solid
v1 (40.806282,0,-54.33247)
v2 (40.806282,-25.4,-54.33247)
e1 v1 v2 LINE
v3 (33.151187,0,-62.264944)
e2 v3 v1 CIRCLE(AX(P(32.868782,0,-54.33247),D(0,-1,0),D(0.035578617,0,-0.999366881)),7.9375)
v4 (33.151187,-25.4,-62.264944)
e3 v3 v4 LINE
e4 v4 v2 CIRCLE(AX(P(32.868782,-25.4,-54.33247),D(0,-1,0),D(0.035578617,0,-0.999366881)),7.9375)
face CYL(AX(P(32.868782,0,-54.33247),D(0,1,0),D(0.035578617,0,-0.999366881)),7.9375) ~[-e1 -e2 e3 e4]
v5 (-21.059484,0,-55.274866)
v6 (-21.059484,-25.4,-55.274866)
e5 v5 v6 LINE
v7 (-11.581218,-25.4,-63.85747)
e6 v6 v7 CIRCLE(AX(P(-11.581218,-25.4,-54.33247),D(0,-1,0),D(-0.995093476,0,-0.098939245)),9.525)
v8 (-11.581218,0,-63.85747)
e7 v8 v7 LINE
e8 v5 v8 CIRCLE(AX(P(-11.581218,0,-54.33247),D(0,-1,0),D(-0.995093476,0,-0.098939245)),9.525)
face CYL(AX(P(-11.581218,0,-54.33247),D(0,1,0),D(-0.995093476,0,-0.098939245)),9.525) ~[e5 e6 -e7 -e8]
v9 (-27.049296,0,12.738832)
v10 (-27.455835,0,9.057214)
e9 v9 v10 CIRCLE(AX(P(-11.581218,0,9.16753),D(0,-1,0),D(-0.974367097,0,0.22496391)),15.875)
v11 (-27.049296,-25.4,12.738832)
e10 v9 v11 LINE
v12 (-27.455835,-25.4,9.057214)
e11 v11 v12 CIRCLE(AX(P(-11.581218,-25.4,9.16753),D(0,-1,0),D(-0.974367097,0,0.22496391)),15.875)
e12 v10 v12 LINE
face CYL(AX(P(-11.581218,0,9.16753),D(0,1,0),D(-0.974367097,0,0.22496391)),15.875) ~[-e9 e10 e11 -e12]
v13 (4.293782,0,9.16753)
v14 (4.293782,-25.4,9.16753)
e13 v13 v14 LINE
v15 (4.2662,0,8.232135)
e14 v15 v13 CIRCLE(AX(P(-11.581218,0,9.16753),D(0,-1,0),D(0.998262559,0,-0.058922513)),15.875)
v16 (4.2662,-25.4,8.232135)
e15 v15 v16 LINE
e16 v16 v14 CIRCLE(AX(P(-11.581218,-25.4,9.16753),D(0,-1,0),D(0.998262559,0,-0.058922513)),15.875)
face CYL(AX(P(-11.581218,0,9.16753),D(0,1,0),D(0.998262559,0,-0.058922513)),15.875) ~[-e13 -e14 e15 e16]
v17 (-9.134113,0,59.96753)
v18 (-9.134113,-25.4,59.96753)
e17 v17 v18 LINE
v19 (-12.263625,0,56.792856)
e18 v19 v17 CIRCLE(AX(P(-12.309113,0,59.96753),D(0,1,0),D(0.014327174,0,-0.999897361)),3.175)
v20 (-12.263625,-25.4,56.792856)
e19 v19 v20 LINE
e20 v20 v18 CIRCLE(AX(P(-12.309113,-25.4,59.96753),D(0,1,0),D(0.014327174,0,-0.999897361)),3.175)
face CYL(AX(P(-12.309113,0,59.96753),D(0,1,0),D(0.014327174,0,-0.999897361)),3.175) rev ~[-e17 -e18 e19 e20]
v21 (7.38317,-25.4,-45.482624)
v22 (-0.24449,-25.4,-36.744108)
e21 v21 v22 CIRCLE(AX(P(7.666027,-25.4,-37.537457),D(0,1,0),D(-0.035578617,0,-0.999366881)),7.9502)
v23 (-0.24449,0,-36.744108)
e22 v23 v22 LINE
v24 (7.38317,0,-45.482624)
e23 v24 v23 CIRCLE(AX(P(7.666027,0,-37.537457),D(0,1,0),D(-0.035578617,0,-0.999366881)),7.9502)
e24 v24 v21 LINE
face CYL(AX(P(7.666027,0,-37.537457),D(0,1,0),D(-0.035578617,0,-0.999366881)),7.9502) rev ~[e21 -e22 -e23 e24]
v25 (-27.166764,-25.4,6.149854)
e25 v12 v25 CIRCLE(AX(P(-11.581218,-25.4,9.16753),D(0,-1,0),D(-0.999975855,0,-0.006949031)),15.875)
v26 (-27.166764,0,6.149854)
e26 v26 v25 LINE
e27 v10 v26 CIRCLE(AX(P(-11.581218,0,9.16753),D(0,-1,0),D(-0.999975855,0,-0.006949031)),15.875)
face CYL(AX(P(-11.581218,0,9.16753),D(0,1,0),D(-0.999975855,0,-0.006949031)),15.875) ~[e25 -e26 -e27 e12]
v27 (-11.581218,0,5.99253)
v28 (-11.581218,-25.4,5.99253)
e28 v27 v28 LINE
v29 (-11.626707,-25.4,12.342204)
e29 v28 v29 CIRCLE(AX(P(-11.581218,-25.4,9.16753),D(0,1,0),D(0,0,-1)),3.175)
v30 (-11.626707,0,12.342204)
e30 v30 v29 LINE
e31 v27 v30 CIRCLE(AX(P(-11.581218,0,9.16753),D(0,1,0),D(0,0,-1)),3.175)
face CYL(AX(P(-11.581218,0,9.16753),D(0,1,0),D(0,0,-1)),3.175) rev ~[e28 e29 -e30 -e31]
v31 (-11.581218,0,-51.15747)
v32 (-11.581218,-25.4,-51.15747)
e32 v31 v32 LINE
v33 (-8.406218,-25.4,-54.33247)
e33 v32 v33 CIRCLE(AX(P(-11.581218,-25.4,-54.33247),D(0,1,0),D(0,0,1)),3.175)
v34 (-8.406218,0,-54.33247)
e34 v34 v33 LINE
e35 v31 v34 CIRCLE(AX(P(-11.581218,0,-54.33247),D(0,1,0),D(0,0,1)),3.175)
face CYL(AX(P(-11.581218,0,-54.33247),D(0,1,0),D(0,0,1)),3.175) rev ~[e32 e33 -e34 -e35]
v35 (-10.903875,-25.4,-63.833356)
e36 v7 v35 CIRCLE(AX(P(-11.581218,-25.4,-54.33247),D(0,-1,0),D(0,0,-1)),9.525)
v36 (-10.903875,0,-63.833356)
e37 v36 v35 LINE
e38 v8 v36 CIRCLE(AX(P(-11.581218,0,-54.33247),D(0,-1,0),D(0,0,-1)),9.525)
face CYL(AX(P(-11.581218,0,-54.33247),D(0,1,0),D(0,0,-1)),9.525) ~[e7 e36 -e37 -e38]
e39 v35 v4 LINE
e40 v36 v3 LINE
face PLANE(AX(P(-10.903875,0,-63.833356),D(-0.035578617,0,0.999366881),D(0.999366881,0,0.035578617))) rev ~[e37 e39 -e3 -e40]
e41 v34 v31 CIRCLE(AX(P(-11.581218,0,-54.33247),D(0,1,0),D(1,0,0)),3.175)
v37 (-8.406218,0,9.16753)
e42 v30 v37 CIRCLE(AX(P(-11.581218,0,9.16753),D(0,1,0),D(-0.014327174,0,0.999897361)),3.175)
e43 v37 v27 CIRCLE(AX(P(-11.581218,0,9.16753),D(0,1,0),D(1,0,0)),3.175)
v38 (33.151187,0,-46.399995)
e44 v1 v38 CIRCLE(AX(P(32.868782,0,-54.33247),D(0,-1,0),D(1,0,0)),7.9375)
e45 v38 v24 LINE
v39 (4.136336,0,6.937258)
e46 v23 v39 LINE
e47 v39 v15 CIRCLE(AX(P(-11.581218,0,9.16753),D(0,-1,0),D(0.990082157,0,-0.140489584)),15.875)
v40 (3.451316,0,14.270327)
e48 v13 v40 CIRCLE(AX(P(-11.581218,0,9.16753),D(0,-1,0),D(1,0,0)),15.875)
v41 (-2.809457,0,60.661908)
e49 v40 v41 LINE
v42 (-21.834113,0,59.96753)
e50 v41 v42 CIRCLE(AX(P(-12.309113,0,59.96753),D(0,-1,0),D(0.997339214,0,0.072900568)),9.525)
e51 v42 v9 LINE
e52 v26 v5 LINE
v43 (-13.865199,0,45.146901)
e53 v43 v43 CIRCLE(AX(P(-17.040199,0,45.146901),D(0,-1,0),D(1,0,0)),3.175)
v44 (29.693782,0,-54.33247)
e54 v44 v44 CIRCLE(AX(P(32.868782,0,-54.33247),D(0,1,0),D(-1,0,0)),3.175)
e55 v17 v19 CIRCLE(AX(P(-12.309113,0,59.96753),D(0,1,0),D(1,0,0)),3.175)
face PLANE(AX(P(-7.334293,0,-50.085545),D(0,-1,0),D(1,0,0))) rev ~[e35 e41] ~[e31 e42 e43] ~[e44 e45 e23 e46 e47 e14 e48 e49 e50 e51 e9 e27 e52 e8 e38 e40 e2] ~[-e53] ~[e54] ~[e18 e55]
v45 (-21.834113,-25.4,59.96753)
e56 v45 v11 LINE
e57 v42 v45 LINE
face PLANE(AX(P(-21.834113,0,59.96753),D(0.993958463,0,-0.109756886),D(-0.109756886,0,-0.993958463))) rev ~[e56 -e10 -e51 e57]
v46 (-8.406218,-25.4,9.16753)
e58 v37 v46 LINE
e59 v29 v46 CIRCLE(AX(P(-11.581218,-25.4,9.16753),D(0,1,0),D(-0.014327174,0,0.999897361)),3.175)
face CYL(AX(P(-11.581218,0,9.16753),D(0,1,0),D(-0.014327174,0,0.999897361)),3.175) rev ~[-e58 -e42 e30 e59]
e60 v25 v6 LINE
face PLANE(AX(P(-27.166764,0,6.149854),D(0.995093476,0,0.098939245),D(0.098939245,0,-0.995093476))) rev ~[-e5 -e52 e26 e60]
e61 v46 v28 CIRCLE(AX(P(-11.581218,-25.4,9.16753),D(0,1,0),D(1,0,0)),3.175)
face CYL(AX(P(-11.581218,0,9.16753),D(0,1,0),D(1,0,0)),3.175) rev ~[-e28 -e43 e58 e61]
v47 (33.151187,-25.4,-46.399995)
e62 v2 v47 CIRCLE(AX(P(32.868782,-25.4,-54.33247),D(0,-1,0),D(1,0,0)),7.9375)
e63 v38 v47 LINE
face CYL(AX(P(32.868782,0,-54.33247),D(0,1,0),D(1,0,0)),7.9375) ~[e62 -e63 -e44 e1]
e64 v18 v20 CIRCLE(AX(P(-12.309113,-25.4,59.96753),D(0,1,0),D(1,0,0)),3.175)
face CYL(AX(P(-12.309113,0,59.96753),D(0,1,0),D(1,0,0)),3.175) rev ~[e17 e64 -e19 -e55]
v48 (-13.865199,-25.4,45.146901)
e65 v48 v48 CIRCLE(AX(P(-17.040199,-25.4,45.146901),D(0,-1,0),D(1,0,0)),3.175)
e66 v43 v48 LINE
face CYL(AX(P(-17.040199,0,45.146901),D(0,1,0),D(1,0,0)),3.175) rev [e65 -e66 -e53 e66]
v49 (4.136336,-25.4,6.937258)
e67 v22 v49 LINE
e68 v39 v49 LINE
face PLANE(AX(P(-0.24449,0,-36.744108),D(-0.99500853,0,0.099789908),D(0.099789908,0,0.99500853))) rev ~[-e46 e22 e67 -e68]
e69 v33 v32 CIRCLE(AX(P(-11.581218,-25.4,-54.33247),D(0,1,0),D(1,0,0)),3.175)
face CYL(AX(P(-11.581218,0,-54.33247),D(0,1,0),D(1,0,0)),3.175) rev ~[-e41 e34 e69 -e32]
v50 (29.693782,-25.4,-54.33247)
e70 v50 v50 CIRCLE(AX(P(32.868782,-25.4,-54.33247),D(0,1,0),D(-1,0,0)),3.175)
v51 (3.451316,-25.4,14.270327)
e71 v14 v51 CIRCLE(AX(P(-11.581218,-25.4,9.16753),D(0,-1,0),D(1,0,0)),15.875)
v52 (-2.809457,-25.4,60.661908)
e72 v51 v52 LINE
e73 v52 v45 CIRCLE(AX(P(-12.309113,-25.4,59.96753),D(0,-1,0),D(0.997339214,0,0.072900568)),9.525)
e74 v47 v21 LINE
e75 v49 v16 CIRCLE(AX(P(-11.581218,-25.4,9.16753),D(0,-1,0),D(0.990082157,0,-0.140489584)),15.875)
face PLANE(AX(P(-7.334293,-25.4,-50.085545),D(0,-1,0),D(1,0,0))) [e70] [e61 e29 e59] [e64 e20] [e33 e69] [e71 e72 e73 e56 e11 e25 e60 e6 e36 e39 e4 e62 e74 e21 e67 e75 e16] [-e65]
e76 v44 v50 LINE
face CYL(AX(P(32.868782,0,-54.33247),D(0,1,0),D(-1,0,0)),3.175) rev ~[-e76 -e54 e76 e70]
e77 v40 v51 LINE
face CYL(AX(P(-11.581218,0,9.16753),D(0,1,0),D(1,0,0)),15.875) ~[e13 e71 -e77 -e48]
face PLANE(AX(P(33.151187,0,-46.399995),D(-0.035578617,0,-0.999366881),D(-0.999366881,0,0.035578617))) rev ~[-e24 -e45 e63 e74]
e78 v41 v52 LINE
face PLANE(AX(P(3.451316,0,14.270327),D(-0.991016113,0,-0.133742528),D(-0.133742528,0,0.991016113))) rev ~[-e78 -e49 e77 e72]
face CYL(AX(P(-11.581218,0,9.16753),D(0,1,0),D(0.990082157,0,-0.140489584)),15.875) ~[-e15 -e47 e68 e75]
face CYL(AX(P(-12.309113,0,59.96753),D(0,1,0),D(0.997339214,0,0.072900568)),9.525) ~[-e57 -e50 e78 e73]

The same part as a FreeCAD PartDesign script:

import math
import FreeCAD as App
import Part
import Sketcher
Q = App.Units.Quantity

doc = App.newDocument("Part")
body = doc.addObject("PartDesign::Body", "Body")

# Sketch on XZ plane
sketch1 = body.newObject("Sketcher::SketchObject", "Sketch")
sketch1.AttachmentSupport = (doc.getObject("XZ_Plane"), [""])
sketch1.MapMode = "FlatFace"
sketch1.addGeometry(Part.LineSegment(App.Vector(-10.9, -63.8, 0), App.Vector(33.2, -62.3, 0)), False)
sketch1.addGeometry(Part.ArcOfCircle(Part.Circle(App.Vector(32.9, -54.3, 0), App.Vector(0, 0, 1), 7.9), math.radians(-88), math.radians(0)), False)
sketch1.addGeometry(Part.ArcOfCircle(Part.Circle(App.Vector(32.9, -54.3, 0), App.Vector(0, 0, 1), 7.9), math.radians(0), math.radians(88)), False)
sketch1.addGeometry(Part.LineSegment(App.Vector(33.2, -46.4, 0), App.Vector(7.4, -45.5, 0)), False)
sketch1.addGeometry(Part.ArcOfCircle(Part.Circle(App.Vector(7.7, -37.5, 0), App.Vector(0, 0, 1), 8), math.radians(174), math.radians(268)), False)
sketch1.addGeometry(Part.LineSegment(App.Vector(-0.2, -36.7, 0), App.Vector(4.1, 6.9, 0)), False)
sketch1.addGeometry(Part.ArcOfCircle(Part.Circle(App.Vector(-11.6, 9.2, 0), App.Vector(0, 0, 1), 15.9), math.radians(-8.08), math.radians(-3.38)), False)
sketch1.addGeometry(Part.ArcOfCircle(Part.Circle(App.Vector(-11.6, 9.2, 0), App.Vector(0, 0, 1), 15.9), math.radians(-3.38), math.radians(0)), False)
sketch1.addGeometry(Part.ArcOfCircle(Part.Circle(App.Vector(-11.6, 9.2, 0), App.Vector(0, 0, 1), 15.9), math.radians(0), math.radians(18.75)), False)
sketch1.addGeometry(Part.LineSegment(App.Vector(3.5, 14.3, 0), App.Vector(-2.8, 60.7, 0)), False)
sketch1.addGeometry(Part.ArcOfCircle(Part.Circle(App.Vector(-12.3, 60, 0), App.Vector(0, 0, 1), 9.5), math.radians(4), math.radians(180)), False)
sketch1.addGeometry(Part.LineSegment(App.Vector(-21.8, 60, 0), App.Vector(-27, 12.7, 0)), False)
sketch1.addGeometry(Part.ArcOfCircle(Part.Circle(App.Vector(-11.6, 9.2, 0), App.Vector(0, 0, 1), 15.9), math.radians(167), math.radians(180.4)), False)
sketch1.addGeometry(Part.ArcOfCircle(Part.Circle(App.Vector(-11.6, 9.2, 0), App.Vector(0, 0, 1), 15.9), math.radians(-179.6), math.radians(-169.04)), False)
sketch1.addGeometry(Part.LineSegment(App.Vector(-27.2, 6.1, 0), App.Vector(-21.1, -55.3, 0)), False)
sketch1.addGeometry(Part.ArcOfCircle(Part.Circle(App.Vector(-11.6, -54.3, 0), App.Vector(0, 0, 1), 9.5), math.radians(-174), math.radians(-90)), False)
sketch1.addGeometry(Part.ArcOfCircle(Part.Circle(App.Vector(-11.6, -54.3, 0), App.Vector(0, 0, 1), 9.5), math.radians(-90), math.radians(-85.92)), False)
sketch1.addGeometry(Part.ArcOfCircle(Part.Circle(App.Vector(-11.6, -54.3, 0), App.Vector(0, 0, 1), 9.5), math.radians(0), math.radians(90)), False)
sketch1.addGeometry(Part.LineSegment(App.Vector(-2.1, -54.3, 0), App.Vector(-8.4, -54.3, 0)), False)
sketch1.addGeometry(Part.ArcOfCircle(Part.Circle(App.Vector(-11.6, -54.3, 0), App.Vector(0, 0, 1), 3.2), math.radians(90), math.radians(360)), False)
sketch1.addGeometry(Part.LineSegment(App.Vector(-11.6, -51.2, 0), App.Vector(-11.6, -44.8, 0)), False)
sketch1.addGeometry(Part.Circle(App.Vector(32.9, -54.3, 0), App.Vector(0, 0, 1), 3.2), False)
sketch1.addGeometry(Part.ArcOfCircle(Part.Circle(App.Vector(-11.6, 9.2, 0), App.Vector(0, 0, 1), 3.2), math.radians(0), math.radians(91)), False)
sketch1.addGeometry(Part.ArcOfCircle(Part.Circle(App.Vector(-11.6, 9.2, 0), App.Vector(0, 0, 1), 3.2), math.radians(-90), math.radians(0)), False)
sketch1.addGeometry(Part.ArcOfCircle(Part.Circle(App.Vector(-11.6, 9.2, 0), App.Vector(0, 0, 1), 3.2), math.radians(91), math.radians(270)), False)
sketch1.addGeometry(Part.Circle(App.Vector(-17, 45.1, 0), App.Vector(0, 0, 1), 3.2), False)
sketch1.addGeometry(Part.ArcOfCircle(Part.Circle(App.Vector(-12.3, 60, 0), App.Vector(0, 0, 1), 3.2), math.radians(0), math.radians(271)), False)
sketch1.addGeometry(Part.ArcOfCircle(Part.Circle(App.Vector(-12.3, 60, 0), App.Vector(0, 0, 1), 3.2), math.radians(-89), math.radians(0)), False)
sketch1.addConstraint(Sketcher.Constraint("Tangent", 0, 2, 1, 1))
sketch1.addConstraint(Sketcher.Constraint("Tangent", 1, 2, 2, 1))
sketch1.addConstraint(Sketcher.Constraint("Tangent", 2, 2, 3, 1))
sketch1.addConstraint(Sketcher.Constraint("Tangent", 3, 2, 4, 2))
sketch1.addConstraint(Sketcher.Constraint("Tangent", 4, 1, 5, 1))
sketch1.addConstraint(Sketcher.Constraint("Coincident", 5, 2, 6, 1))
sketch1.addConstraint(Sketcher.Constraint("Tangent", 6, 2, 7, 1))
sketch1.addConstraint(Sketcher.Constraint("Tangent", 7, 2, 8, 1))
sketch1.addConstraint(Sketcher.Constraint("Coincident", 8, 2, 9, 1))
sketch1.addConstraint(Sketcher.Constraint("Coincident", 9, 2, 10, 1))
sketch1.addConstraint(Sketcher.Constraint("Coincident", 10, 2, 11, 1))
sketch1.addConstraint(Sketcher.Constraint("Coincident", 11, 2, 12, 1))
sketch1.addConstraint(Sketcher.Constraint("Tangent", 12, 2, 13, 1))
sketch1.addConstraint(Sketcher.Constraint("Coincident", 13, 2, 14, 1))
sketch1.addConstraint(Sketcher.Constraint("Tangent", 14, 2, 15, 1))
sketch1.addConstraint(Sketcher.Constraint("Tangent", 15, 2, 16, 1))
sketch1.addConstraint(Sketcher.Constraint("Coincident", 16, 2, 0, 1))
sketch1.addConstraint(Sketcher.Constraint("Coincident", 17, 1, 18, 1))
sketch1.addConstraint(Sketcher.Constraint("Coincident", 18, 2, 19, 2))
sketch1.addConstraint(Sketcher.Constraint("Coincident", 19, 1, 20, 1))
sketch1.addConstraint(Sketcher.Constraint("Coincident", 20, 2, 17, 2))
sketch1.addConstraint(Sketcher.Constraint("Tangent", 22, 1, 23, 2))
sketch1.addConstraint(Sketcher.Constraint("Tangent", 23, 1, 24, 2))
sketch1.addConstraint(Sketcher.Constraint("Tangent", 24, 1, 22, 2))
sketch1.addConstraint(Sketcher.Constraint("Tangent", 26, 1, 27, 2))
sketch1.addConstraint(Sketcher.Constraint("Coincident", 27, 1, 26, 2))
sketch1.addConstraint(Sketcher.Constraint("Horizontal", 18))
sketch1.addConstraint(Sketcher.Constraint("Vertical", 20))
sketch1.addConstraint(Sketcher.Constraint("Coincident", 8, 3, 6, 3))
sketch1.addConstraint(Sketcher.Constraint("Coincident", 12, 3, 6, 3))
sketch1.addConstraint(Sketcher.Constraint("Coincident", 17, 3, 15, 3))
sketch1.addConstraint(Sketcher.Constraint("Coincident", 19, 3, 15, 3))
sketch1.addConstraint(Sketcher.Constraint("Coincident", 21, 3, 1, 3))
sketch1.addConstraint(Sketcher.Constraint("Coincident", 22, 3, 6, 3))
sketch1.addConstraint(Sketcher.Constraint("Coincident", 26, 3, 10, 3))
sketch1.addConstraint(Sketcher.Constraint("Equal", 1, 2))
sketch1.addConstraint(Sketcher.Constraint("Equal", 8, 12))
sketch1.addConstraint(Sketcher.Constraint("Equal", 12, 13))
sketch1.addConstraint(Sketcher.Constraint("Equal", 10, 15))
sketch1.addConstraint(Sketcher.Constraint("Equal", 15, 16))
sketch1.addConstraint(Sketcher.Constraint("Equal", 16, 17))
sketch1.addConstraint(Sketcher.Constraint("Equal", 19, 21))
sketch1.addConstraint(Sketcher.Constraint("Equal", 21, 22))
sketch1.addConstraint(Sketcher.Constraint("Equal", 24, 25))
sketch1.addConstraint(Sketcher.Constraint("Equal", 25, 26))
sketch1.addConstraint(Sketcher.Constraint("Horizontal", 2, 3, 15, 3))
sketch1.addConstraint(Sketcher.Constraint("Horizontal", 21, 3, 1, 2))
sketch1.addConstraint(Sketcher.Constraint("Horizontal", 24, 3, 7, 2))
sketch1.addConstraint(Sketcher.Constraint("Horizontal", 27, 3, 10, 2))
sketch1.addConstraint(Sketcher.Constraint("Horizontal", 1, 2, 17, 1))
sketch1.addConstraint(Sketcher.Constraint("Horizontal", 7, 2, 22, 1))
sketch1.addConstraint(Sketcher.Constraint("Horizontal", 10, 2, 26, 1))
sketch1.addConstraint(Sketcher.Constraint("Vertical", 13, 3, 15, 3))
sketch1.addConstraint(Sketcher.Constraint("Vertical", 0, 2, 2, 2))
sketch1.addConstraint(Sketcher.Constraint("Vertical", 24, 3, 15, 2))
sketch1.addConstraint(Sketcher.Constraint("Vertical", 15, 2, 19, 1))
sketch1.addConstraint(Sketcher.Constraint("Vertical", 20, 2, 23, 1))
sketch1.addConstraint(Sketcher.Constraint("Diameter", 21, Q("0.25 in")))
sketch1.addConstraint(Sketcher.Constraint("Radius", 1, Q("0.3125 in")))
sketch1.addConstraint(Sketcher.Constraint("Radius", 4, Q("0.313 in")))
sketch1.addConstraint(Sketcher.Constraint("Radius", 6, Q("0.625 in")))
sketch1.addConstraint(Sketcher.Constraint("Radius", 10, Q("0.375 in")))
sketch1.addConstraint(Sketcher.Constraint("DistanceY", 8, 3, 10, 3, Q("2 in")))
sketch1.addConstraint(Sketcher.Constraint("DistanceY", 1, 3, 6, 3, Q("2.5 in")))
sketch1.addConstraint(Sketcher.Constraint("DistanceX", 6, 3, 1, 3, Q("1.75 in")))
sketch1.addConstraint(Sketcher.Constraint("DistanceY", -1, 1, 6, 2, Q("0.3240998 in")))
sketch1.addConstraint(Sketcher.Constraint("DistanceX", 25, 3, -1, 1, 17.040199))
sketch1.addConstraint(Sketcher.Constraint("DistanceY", -1, 1, 25, 3, 45.146901))
sketch1.addConstraint(Sketcher.Constraint("DistanceX", -1, 1, 6, 2, 4.2662))
sketch1.addConstraint(Sketcher.Constraint("Distance", 0, 44.082972))
sketch1.addConstraint(Sketcher.Constraint("DistanceX", -1, 1, 1, 3, 32.868782))
sketch1.addConstraint(Sketcher.Constraint("DistanceX", -1, 1, 3, 2, 7.38317))
sketch1.addConstraint(Sketcher.Constraint("DistanceY", -1, 1, 9, 2, 60.661908))
sketch1.addConstraint(Sketcher.Constraint("DistanceX", 10, 3, 4, 3, 19.97514))
sketch1.addConstraint(Sketcher.Constraint("DistanceX", 8, 2, 5, 2, 0.68502))
sketch1.addConstraint(Sketcher.Constraint("DistanceY", 5, 2, 8, 2, 7.333069))
sketch1.addConstraint(Sketcher.Constraint("DistanceX", 12, 2, 11, 2, 0.406539))
sketch1.addConstraint(Sketcher.Constraint("DistanceX", 12, 2, 13, 2, 0.28907))
sketch1.addConstraint(Sketcher.Constraint("DistanceY", 13, 2, 12, 2, 2.907361))
sketch1.addConstraint(Sketcher.Constraint("DistanceX", 24, 1, 12, 3, 0.045489))
sketch1.addConstraint(Sketcher.Constraint("DistanceX", 10, 3, 27, 1, 0.045489))
pad1 = body.newObject("PartDesign::Pad", "Pad")
pad1.Profile = sketch1
pad1.Length = Q("1 in")

# Sketch on XZ plane
sketch2 = body.newObject("Sketcher::SketchObject", "Sketch001")
sketch2.AttachmentSupport = (doc.getObject("XZ_Plane"), [""])
sketch2.MapMode = "FlatFace"
sketch2.addGeometry(Part.ArcOfCircle(Part.Circle(App.Vector(-11.6, -54.3, 0), App.Vector(0, 0, 1), 9.5), math.radians(0), math.radians(90)), False)
sketch2.addGeometry(Part.LineSegment(App.Vector(-11.6, -44.8, 0), App.Vector(-11.6, -51.2, 0)), False)
sketch2.addGeometry(Part.ArcOfCircle(Part.Circle(App.Vector(-11.6, -54.3, 0), App.Vector(0, 0, 1), 3.2), math.radians(0), math.radians(90)), False)
sketch2.addGeometry(Part.LineSegment(App.Vector(-8.4, -54.3, 0), App.Vector(-2.1, -54.3, 0)), False)
sketch2.addConstraint(Sketcher.Constraint("Coincident", 0, 2, 1, 1))
sketch2.addConstraint(Sketcher.Constraint("Coincident", 1, 2, 2, 2))
sketch2.addConstraint(Sketcher.Constraint("Coincident", 2, 1, 3, 1))
sketch2.addConstraint(Sketcher.Constraint("Coincident", 3, 2, 0, 1))
sketch2.addConstraint(Sketcher.Constraint("Vertical", 1))
sketch2.addConstraint(Sketcher.Constraint("Horizontal", 3))
sketch2.addConstraint(Sketcher.Constraint("Coincident", 2, 3, 0, 3))
sketch2.addConstraint(Sketcher.Constraint("Horizontal", 0, 3, 2, 1))
sketch2.addConstraint(Sketcher.Constraint("Vertical", 2, 3, 0, 2))
sketch2.addConstraint(Sketcher.Constraint("Radius", 0, Q("0.375 in")))
sketch2.addConstraint(Sketcher.Constraint("Radius", 2, Q("0.125 in")))
sketch2.addConstraint(Sketcher.Constraint("DistanceX", 0, 3, -1, 1, 11.581218))
sketch2.addConstraint(Sketcher.Constraint("DistanceY", 0, 3, -1, 1, 54.33247))
pad2 = body.newObject("PartDesign::Pad", "Pad001")
pad2.Profile = sketch2
pad2.Length = Q("1 in")

doc.recompute()
